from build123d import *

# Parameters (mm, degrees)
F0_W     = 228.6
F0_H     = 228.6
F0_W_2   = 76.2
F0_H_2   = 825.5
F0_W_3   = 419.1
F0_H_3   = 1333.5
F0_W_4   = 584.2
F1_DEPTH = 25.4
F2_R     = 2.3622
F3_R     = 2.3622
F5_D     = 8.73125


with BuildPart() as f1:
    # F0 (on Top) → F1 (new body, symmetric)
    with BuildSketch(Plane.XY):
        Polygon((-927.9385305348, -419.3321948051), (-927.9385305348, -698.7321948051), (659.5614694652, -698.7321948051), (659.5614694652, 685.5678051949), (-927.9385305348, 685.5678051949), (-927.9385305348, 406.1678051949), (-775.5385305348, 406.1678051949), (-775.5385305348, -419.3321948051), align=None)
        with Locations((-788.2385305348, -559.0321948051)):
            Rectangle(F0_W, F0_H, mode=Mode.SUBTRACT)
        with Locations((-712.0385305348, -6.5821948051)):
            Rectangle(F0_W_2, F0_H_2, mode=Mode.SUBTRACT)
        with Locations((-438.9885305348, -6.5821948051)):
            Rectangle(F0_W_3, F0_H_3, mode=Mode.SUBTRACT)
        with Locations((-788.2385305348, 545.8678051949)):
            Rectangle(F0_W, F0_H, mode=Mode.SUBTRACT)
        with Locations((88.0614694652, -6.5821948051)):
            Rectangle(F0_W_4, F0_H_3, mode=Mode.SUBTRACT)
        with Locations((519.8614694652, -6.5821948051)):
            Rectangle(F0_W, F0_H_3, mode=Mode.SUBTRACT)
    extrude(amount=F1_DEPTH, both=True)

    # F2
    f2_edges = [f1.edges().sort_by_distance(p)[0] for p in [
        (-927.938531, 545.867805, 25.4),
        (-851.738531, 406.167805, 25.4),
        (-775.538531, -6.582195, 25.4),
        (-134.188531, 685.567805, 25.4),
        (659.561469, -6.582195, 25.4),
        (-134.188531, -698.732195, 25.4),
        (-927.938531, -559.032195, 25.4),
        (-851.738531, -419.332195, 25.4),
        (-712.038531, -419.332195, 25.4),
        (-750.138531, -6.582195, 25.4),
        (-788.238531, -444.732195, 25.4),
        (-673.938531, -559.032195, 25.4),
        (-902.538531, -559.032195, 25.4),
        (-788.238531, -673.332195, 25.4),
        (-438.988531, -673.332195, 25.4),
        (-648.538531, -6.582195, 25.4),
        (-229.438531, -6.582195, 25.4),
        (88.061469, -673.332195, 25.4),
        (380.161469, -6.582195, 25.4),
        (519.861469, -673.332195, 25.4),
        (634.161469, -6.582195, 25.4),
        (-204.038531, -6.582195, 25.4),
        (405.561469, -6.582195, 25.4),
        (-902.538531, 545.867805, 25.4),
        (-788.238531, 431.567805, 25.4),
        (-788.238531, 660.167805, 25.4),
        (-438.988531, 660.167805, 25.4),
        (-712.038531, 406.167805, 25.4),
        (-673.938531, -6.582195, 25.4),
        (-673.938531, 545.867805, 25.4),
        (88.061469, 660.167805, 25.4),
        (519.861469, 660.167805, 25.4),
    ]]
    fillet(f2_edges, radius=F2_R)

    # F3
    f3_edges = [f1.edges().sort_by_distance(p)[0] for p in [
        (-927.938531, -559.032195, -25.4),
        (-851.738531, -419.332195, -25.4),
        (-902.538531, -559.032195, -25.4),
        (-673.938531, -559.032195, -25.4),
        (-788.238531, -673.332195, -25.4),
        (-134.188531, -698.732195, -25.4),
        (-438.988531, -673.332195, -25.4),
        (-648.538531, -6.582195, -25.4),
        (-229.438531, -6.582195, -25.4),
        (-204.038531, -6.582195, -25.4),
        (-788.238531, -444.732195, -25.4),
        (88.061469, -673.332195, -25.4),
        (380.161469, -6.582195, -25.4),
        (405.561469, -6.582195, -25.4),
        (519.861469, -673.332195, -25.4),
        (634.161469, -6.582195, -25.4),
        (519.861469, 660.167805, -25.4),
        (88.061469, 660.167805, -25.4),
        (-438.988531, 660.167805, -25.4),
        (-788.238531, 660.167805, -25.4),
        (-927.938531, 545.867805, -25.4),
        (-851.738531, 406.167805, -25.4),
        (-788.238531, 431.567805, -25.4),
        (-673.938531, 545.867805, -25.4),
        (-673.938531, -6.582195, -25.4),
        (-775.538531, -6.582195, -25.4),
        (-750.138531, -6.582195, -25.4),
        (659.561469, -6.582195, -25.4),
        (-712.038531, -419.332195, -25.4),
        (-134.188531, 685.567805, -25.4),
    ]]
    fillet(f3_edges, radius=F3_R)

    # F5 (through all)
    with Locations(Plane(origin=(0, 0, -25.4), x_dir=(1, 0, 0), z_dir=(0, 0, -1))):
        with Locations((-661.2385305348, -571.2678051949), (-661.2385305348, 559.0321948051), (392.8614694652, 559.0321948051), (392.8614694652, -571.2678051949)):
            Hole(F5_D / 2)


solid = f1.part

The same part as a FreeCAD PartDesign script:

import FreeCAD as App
import Part
import Sketcher

V = App.Vector
Q = App.Units.Quantity


def edges_at(feature, points):
    """Names of the edges that pass closest to the given points."""
    edges = feature.Shape.Edges
    near = lambda p: min(range(len(edges)), key=lambda i: edges[i].distToShape(Part.Vertex(*p))[0])
    return sorted({f"Edge{near(p) + 1}" for p in points})


def add_polygon(sketch, points):
    """Adds a closed chain of lines whose ends are joined by coincident constraints."""
    first, n = sketch.GeometryCount, len(points)
    for a, b in zip(points, points[1:] + points[:1]):
        sketch.addGeometry(Part.LineSegment(App.Vector(*a, 0), App.Vector(*b, 0)), False)
    for i in range(n):
        sketch.addConstraint(Sketcher.Constraint("Coincident", first + i, 2, first + (i + 1) % n, 1))

doc = App.newDocument("Part")
body = doc.addObject("PartDesign::Body", "Body")

sketch1 = doc.addObject("Sketcher::SketchObject", "Sketch")
body.addObject(sketch1)
sketch1.AttachmentSupport = (doc.XY_Plane, [""])
sketch1.MapMode = "FlatFace"
add_polygon(sketch1, [(-928, -419), (-928, -699), (660, -699), (660, 686), (-928, 686), (-928, 406), (-776, 406), (-776, -419)])
add_polygon(sketch1, [(-674, -673), (-903, -673), (-903, -445), (-674, -445)])
add_polygon(sketch1, [(-674, -419), (-750, -419), (-750, 406), (-674, 406)])
add_polygon(sketch1, [(-229, -673), (-649, -673), (-649, 660), (-229, 660)])
add_polygon(sketch1, [(-674, 432), (-903, 432), (-903, 660), (-674, 660)])
add_polygon(sketch1, [(380, -673), (-204, -673), (-204, 660), (380, 660)])
add_polygon(sketch1, [(634, -673), (406, -673), (406, 660), (634, 660)])
sketch1.addConstraint(Sketcher.Constraint("Vertical", 0))
sketch1.addConstraint(Sketcher.Constraint("Horizontal", 1))
sketch1.addConstraint(Sketcher.Constraint("Vertical", 2))
sketch1.addConstraint(Sketcher.Constraint("Horizontal", 3))
sketch1.addConstraint(Sketcher.Constraint("Vertical", 4))
sketch1.addConstraint(Sketcher.Constraint("Horizontal", 5))
sketch1.addConstraint(Sketcher.Constraint("Vertical", 6))
sketch1.addConstraint(Sketcher.Constraint("Horizontal", 7))
sketch1.addConstraint(Sketcher.Constraint("Horizontal", 8))
sketch1.addConstraint(Sketcher.Constraint("Vertical", 9))
sketch1.addConstraint(Sketcher.Constraint("Horizontal", 10))
sketch1.addConstraint(Sketcher.Constraint("Vertical", 11))
sketch1.addConstraint(Sketcher.Constraint("Horizontal", 12))
sketch1.addConstraint(Sketcher.Constraint("Vertical", 13))
sketch1.addConstraint(Sketcher.Constraint("Horizontal", 14))
sketch1.addConstraint(Sketcher.Constraint("Vertical", 15))
sketch1.addConstraint(Sketcher.Constraint("Horizontal", 16))
sketch1.addConstraint(Sketcher.Constraint("Vertical", 17))
sketch1.addConstraint(Sketcher.Constraint("Horizontal", 18))
sketch1.addConstraint(Sketcher.Constraint("Vertical", 19))
sketch1.addConstraint(Sketcher.Constraint("Horizontal", 20))
sketch1.addConstraint(Sketcher.Constraint("Vertical", 21))
sketch1.addConstraint(Sketcher.Constraint("Horizontal", 22))
sketch1.addConstraint(Sketcher.Constraint("Vertical", 23))
sketch1.addConstraint(Sketcher.Constraint("Horizontal", 24))
sketch1.addConstraint(Sketcher.Constraint("Vertical", 25))
sketch1.addConstraint(Sketcher.Constraint("Horizontal", 26))
sketch1.addConstraint(Sketcher.Constraint("Vertical", 27))
sketch1.addConstraint(Sketcher.Constraint("Horizontal", 28))
sketch1.addConstraint(Sketcher.Constraint("Vertical", 29))
sketch1.addConstraint(Sketcher.Constraint("Horizontal", 30))
sketch1.addConstraint(Sketcher.Constraint("Vertical", 31))
sketch1.addConstraint(Sketcher.Constraint("Horizontal", 7, 2, 12, 2))
sketch1.addConstraint(Sketcher.Constraint("Horizontal", 5, 2, 13, 2))
sketch1.addConstraint(Sketcher.Constraint("Horizontal", 11, 2, 16, 2))
sketch1.addConstraint(Sketcher.Constraint("Horizontal", 18, 2, 21, 2))
sketch1.addConstraint(Sketcher.Constraint("Horizontal", 19, 2, 24, 2))
sketch1.addConstraint(Sketcher.Constraint("Horizontal", 22, 2, 25, 2))
sketch1.addConstraint(Sketcher.Constraint("Horizontal", 27, 2, 28, 2))
sketch1.addConstraint(Sketcher.Constraint("Horizontal", 26, 2, 29, 2))
sketch1.addConstraint(Sketcher.Constraint("Vertical", 0, 2, 3, 2))
sketch1.addConstraint(Sketcher.Constraint("Vertical", 11, 2, 14, 2))
sketch1.addConstraint(Sketcher.Constraint("Vertical", 9, 2, 20, 2))
sketch1.addConstraint(Sketcher.Constraint("Vertical", 15, 2, 22, 2))
sketch1.addConstraint(Sketcher.Constraint("Equal", 22, 28))
sketch1.addConstraint(Sketcher.Constraint("Equal", 0, 4))
sketch1.addConstraint(Sketcher.Constraint("Equal", 30, 9))
sketch1.addConstraint(Sketcher.Constraint("Equal", 11, 21))
sketch1.addConstraint(Sketcher.Constraint("DistanceX", 5, 1, 5, 2, Q("6 in")))
sketch1.addConstraint(Sketcher.Constraint("DistanceX", 8, 2, 8, 1, Q("9 in")))
sketch1.addConstraint(Sketcher.Constraint("DistanceX", 12, 2, 12, 1, Q("3 in")))
sketch1.addConstraint(Sketcher.Constraint("DistanceX", 24, 2, 24, 1, Q("23 in")))
sketch1.addConstraint(Sketcher.Constraint("DistanceY", 0, 2, 0, 1, Q("11 in")))
sketch1.addConstraint(Sketcher.Constraint("DistanceX", 1, 1, 1, 2, Q("62.5 in")))
sketch1.addConstraint(Sketcher.Constraint("DistanceX", 16, 2, 16, 1, Q("16.5 in")))
sketch1.addConstraint(Sketcher.Constraint("DistanceY", 2, 1, 2, 2, Q("54.5 in")))
sketch1.addConstraint(Sketcher.Constraint("DistanceY", 17, 1, 17, 2, Q("52.5 in")))
sketch1.addConstraint(Sketcher.Constraint("DistanceX", 0, 2, 8, 2, Q("1 in")))
sketch1.addConstraint(Sketcher.Constraint("DistanceY", 0, 2, 8, 2, Q("1 in")))
sketch1.addConstraint(Sketcher.Constraint("DistanceX", 11, 2, 16, 2, Q("1 in")))
sketch1.addConstraint(Sketcher.Constraint("DistanceX", 19, 2, 24, 2, Q("1 in")))
sketch1.addConstraint(Sketcher.Constraint("DistanceX", 27, 2, 28, 2, Q("1 in")))
sketch1.addConstraint(Sketcher.Constraint("DistanceX", 0, 2, -1, 1, 927.938531))
sketch1.addConstraint(Sketcher.Constraint("DistanceY", 0, 2, -1, 1, 698.732195))
pad1 = doc.addObject("PartDesign::Pad", "Pad")
body.addObject(pad1)
pad1.Profile = sketch1
pad1.Length = Q("2 in")
pad1.Midplane = True
doc.recompute()

fillet = doc.addObject("PartDesign::Fillet", "Fillet")
body.addObject(fillet)
fillet.Base = (pad1, edges_at(pad1, [
    (-927.939, 545.868, 25.4),
    (-851.739, 406.168, 25.4),
    (-775.539, -6.582, 25.4),
    (-134.189, 685.568, 25.4),
    (659.561, -6.582, 25.4),
    (-134.189, -698.732, 25.4),
    (-927.939, -559.032, 25.4),
    (-851.739, -419.332, 25.4),
    (-712.039, -419.332, 25.4),
    (-750.139, -6.582, 25.4),
    (-788.239, -444.732, 25.4),
    (-673.939, -559.032, 25.4),
    (-902.539, -559.032, 25.4),
    (-788.239, -673.332, 25.4),
    (-438.989, -673.332, 25.4),
    (-648.539, -6.582, 25.4),
    (-229.439, -6.582, 25.4),
    (88.061, -673.332, 25.4),
    (380.161, -6.582, 25.4),
    (519.861, -673.332, 25.4),
    (634.161, -6.582, 25.4),
    (-204.039, -6.582, 25.4),
    (405.561, -6.582, 25.4),
    (-902.539, 545.868, 25.4),
    (-788.239, 431.568, 25.4),
    (-788.239, 660.168, 25.4),
    (-438.989, 660.168, 25.4),
    (-712.039, 406.168, 25.4),
    (-673.939, -6.582, 25.4),
    (-673.939, 545.868, 25.4),
    (88.061, 660.168, 25.4),
    (519.861, 660.168, 25.4),
]))
fillet.Radius = Q("0.093 in")
doc.recompute()

fillet2 = doc.addObject("PartDesign::Fillet", "Fillet001")
body.addObject(fillet2)
fillet2.Base = (fillet, edges_at(fillet, [
    (-927.939, -559.032, -25.4),
    (-851.739, -419.332, -25.4),
    (-902.539, -559.032, -25.4),
    (-673.939, -559.032, -25.4),
    (-788.239, -673.332, -25.4),
    (-134.189, -698.732, -25.4),
    (-438.989, -673.332, -25.4),
    (-648.539, -6.582, -25.4),
    (-229.439, -6.582, -25.4),
    (-204.039, -6.582, -25.4),
    (-788.239, -444.732, -25.4),
    (88.061, -673.332, -25.4),
    (380.161, -6.582, -25.4),
    (405.561, -6.582, -25.4),
    (519.861, -673.332, -25.4),
    (634.161, -6.582, -25.4),
    (519.861, 660.168, -25.4),
    (88.061, 660.168, -25.4),
    (-438.989, 660.168, -25.4),
    (-788.239, 660.168, -25.4),
    (-927.939, 545.868, -25.4),
    (-851.739, 406.168, -25.4),
    (-788.239, 431.568, -25.4),
    (-673.939, 545.868, -25.4),
    (-673.939, -6.582, -25.4),
    (-775.539, -6.582, -25.4),
    (-750.139, -6.582, -25.4),
    (659.561, -6.582, -25.4),
    (-712.039, -419.332, -25.4),
    (-134.189, 685.568, -25.4),
]))
fillet2.Radius = Q("0.093 in")

sketch2 = doc.addObject("Sketcher::SketchObject", "Sketch001")
body.addObject(sketch2)
sketch2.AttachmentSupport = (doc.XY_Plane, [""])
sketch2.MapMode = "FlatFace"
sketch2.AttachmentOffset = App.Placement(V(0, 0, -1 * 25.4), App.Rotation())
sketch2.addGeometry(Part.Circle(V(-661.2, 571.3, 0), V(0, 0, 1), 4.4), False)
sketch2.addGeometry(Part.Circle(V(-661.2, -559, 0), V(0, 0, 1), 4.4), False)
sketch2.addGeometry(Part.Circle(V(392.9, -559, 0), V(0, 0, 1), 4.4), False)
sketch2.addGeometry(Part.Circle(V(392.9, 571.3, 0), V(0, 0, 1), 4.4), False)
sketch2.addConstraint(Sketcher.Constraint("Equal", 0, 1))
sketch2.addConstraint(Sketcher.Constraint("Equal", 1, 2))
sketch2.addConstraint(Sketcher.Constraint("Equal", 2, 3))
sketch2.addConstraint(Sketcher.Constraint("Horizontal", 1, 3, 2, 3))
sketch2.addConstraint(Sketcher.Constraint("Horizontal", 0, 3, 3, 3))
sketch2.addConstraint(Sketcher.Constraint("Vertical", 0, 3, 1, 3))
sketch2.addConstraint(Sketcher.Constraint("Vertical", 2, 3, 3, 3))
sketch2.addConstraint(Sketcher.Constraint("Diameter", 0, Q("0.34375 in")))
sketch2.addConstraint(Sketcher.Constraint("DistanceY", 1, 3, 0, 3, Q("44.5 in")))
sketch2.addConstraint(Sketcher.Constraint("DistanceX", 1, 3, 2, 3, Q("41.5 in")))
sketch2.addConstraint(Sketcher.Constraint("DistanceX", 0, 3, -1, 1, 661.238531))
sketch2.addConstraint(Sketcher.Constraint("DistanceY", -1, 1, 0, 3, 571.267805))
doc.recompute()
hole = doc.addObject("PartDesign::Hole", "Hole")
body.addObject(hole)
hole.Profile = sketch2
hole.ThreadType = "None"
hole.Diameter = Q("0.34375 in")
hole.DepthType = "ThroughAll"
hole.Reversed = True

doc.recompute()
